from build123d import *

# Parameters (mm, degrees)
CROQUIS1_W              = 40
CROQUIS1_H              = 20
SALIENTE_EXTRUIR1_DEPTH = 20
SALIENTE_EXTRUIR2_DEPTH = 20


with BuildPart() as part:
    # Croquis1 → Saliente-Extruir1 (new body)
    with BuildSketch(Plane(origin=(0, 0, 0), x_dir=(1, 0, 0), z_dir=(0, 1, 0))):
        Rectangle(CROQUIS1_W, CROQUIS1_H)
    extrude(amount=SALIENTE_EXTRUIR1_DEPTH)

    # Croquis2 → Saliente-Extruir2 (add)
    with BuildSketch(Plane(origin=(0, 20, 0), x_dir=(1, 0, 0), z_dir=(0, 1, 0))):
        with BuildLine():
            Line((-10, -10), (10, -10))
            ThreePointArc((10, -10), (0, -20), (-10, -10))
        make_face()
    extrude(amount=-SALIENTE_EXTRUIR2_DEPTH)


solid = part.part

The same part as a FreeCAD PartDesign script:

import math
import FreeCAD as App
import Part
import Sketcher

V = App.Vector
Q = App.Units.Quantity


def add_polygon(sketch, points):
    """Adds a closed chain of lines whose ends are joined by coincident constraints."""
    first, n = sketch.GeometryCount, len(points)
    for a, b in zip(points, points[1:] + points[:1]):
        sketch.addGeometry(Part.LineSegment(App.Vector(*a, 0), App.Vector(*b, 0)), False)
    for i in range(n):
        sketch.addConstraint(Sketcher.Constraint("Coincident", first + i, 2, first + (i + 1) % n, 1))

doc = App.newDocument("Part")
params = doc.addObject("Spreadsheet::Sheet", "Params")
for row, (alias, value) in enumerate([
    ("sketch1_width", "40 mm"),
    ("sketch1_height", "20 mm"),
    ("pad1_length", "20 mm"),
    ("sketch2_radius", "10 mm"),
    ("pad2_length", "20 mm"),
], start=1):
    params.set(f"A{row}", alias)
    params.set(f"B{row}", "=" + value)
    params.setAlias(f"B{row}", alias)

body = doc.addObject("PartDesign::Body", "Body")

# Sketch on XZ plane
sketch1 = body.newObject("Sketcher::SketchObject", "Sketch")
sketch1.AttachmentSupport = (doc.getObject("XZ_Plane"), [""])
sketch1.MapMode = "FlatFace"
add_polygon(sketch1, [(-20, -10), (-20, 10), (20, 10), (20, -10)])  # lines 0-3
sketch1.addConstraint(Sketcher.Constraint("Vertical", 0))
sketch1.addConstraint(Sketcher.Constraint("Horizontal", 1))
sketch1.addConstraint(Sketcher.Constraint("Vertical", 2))
sketch1.addConstraint(Sketcher.Constraint("Horizontal", 3))
sketch1.addConstraint(Sketcher.Constraint("Symmetric", 0, 2, 2, 2, -1, 1))
sketch1.addConstraint(Sketcher.Constraint("DistanceX", 1, 1, 1, 2, Q("40 mm")))
sketch1.addConstraint(Sketcher.Constraint("DistanceY", 0, 1, 0, 2, Q("20 mm")))
sketch1.setExpression("Constraints[9]", "Params.sketch1_width")
sketch1.setExpression("Constraints[10]", "Params.sketch1_height")
pad1 = body.newObject("PartDesign::Pad", "Pad")
pad1.Profile = sketch1
pad1.setExpression("Length", "Params.pad1_length")
pad1.Reversed = True

# Sketch on XZ plane
sketch2 = body.newObject("Sketcher::SketchObject", "Sketch001")
sketch2.AttachmentSupport = (doc.getObject("XZ_Plane"), [""])
sketch2.MapMode = "FlatFace"
sketch2.AttachmentOffset = App.Placement(V(0, 0, -20), App.Rotation())
sketch2.addGeometry(Part.LineSegment(V(10, 10, 0), V(-10, 10, 0)), False)
sketch2.addGeometry(Part.ArcOfCircle(Part.Circle(V(0, 10, 0), V(0, 0, 1), 10), math.radians(0), math.radians(180)), False)
sketch2.addConstraint(Sketcher.Constraint("Coincident", 0, 1, 1, 1))
sketch2.addConstraint(Sketcher.Constraint("Coincident", 1, 2, 0, 2))
sketch2.addConstraint(Sketcher.Constraint("Horizontal", 0))
sketch2.addConstraint(Sketcher.Constraint("PointOnObject", 1, 3, -2))
sketch2.addConstraint(Sketcher.Constraint("Horizontal", 1, 3, 0, 1))
sketch2.addConstraint(Sketcher.Constraint("Radius", 1, Q("10 mm")))
sketch2.addConstraint(Sketcher.Constraint("DistanceY", -1, 1, 1, 3, Q("10 mm")))
sketch2.setExpression("Constraints[5]", "Params.sketch2_radius")
pad2 = body.newObject("PartDesign::Pad", "Pad001")
pad2.Profile = sketch2
pad2.setExpression("Length", "Params.pad2_length")

doc.recompute()
